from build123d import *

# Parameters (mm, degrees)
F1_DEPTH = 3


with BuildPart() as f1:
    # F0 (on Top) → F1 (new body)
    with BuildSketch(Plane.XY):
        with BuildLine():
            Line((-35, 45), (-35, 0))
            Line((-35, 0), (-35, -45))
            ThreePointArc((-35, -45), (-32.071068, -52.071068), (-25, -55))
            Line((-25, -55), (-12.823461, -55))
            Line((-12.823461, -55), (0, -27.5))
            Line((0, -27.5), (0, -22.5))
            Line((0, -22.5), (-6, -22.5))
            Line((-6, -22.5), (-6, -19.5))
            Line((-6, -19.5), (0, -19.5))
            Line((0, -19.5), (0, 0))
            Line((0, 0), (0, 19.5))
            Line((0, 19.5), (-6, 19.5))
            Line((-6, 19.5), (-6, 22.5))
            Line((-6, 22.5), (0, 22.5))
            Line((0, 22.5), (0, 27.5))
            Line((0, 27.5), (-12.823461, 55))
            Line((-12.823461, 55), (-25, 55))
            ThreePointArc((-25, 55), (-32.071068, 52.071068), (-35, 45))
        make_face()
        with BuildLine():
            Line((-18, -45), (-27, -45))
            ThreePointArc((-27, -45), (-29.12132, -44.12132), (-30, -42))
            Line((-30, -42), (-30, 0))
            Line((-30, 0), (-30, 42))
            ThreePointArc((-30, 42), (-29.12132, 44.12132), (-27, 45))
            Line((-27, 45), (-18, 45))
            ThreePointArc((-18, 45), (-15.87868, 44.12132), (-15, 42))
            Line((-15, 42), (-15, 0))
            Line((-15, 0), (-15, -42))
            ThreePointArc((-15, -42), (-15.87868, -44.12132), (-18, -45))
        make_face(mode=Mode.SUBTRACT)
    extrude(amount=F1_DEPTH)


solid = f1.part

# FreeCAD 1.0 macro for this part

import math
import FreeCAD as App
import Part
import Sketcher
Q = App.Units.Quantity

doc = App.newDocument("Part")
body = doc.addObject("PartDesign::Body", "Body")

# Sketch on XY plane
sketch1 = doc.addObject("Sketcher::SketchObject", "Sketch")
body.addObject(sketch1)
sketch1.AttachmentSupport = (doc.XY_Plane, [""])
sketch1.MapMode = "FlatFace"
sketch1.addGeometry([
    Part.LineSegment(App.Vector(-35, 45, 0), App.Vector(-35, -45, 0)),  # 0
    Part.ArcOfCircle(Part.Circle(App.Vector(-25, -45, 0), App.Vector(0, 0, 1), 10), math.radians(180), math.radians(270)),  # 1
    Part.LineSegment(App.Vector(-25, -55, 0), App.Vector(-12.8, -55, 0)),  # 2
    Part.LineSegment(App.Vector(-12.8, -55, 0), App.Vector(0, -27.5, 0)),  # 3
    Part.LineSegment(App.Vector(0, -27.5, 0), App.Vector(0, -22.5, 0)),  # 4
    Part.LineSegment(App.Vector(0, -22.5, 0), App.Vector(-6, -22.5, 0)),  # 5
    Part.LineSegment(App.Vector(-6, -22.5, 0), App.Vector(-6, -19.5, 0)),  # 6
    Part.LineSegment(App.Vector(-6, -19.5, 0), App.Vector(0, -19.5, 0)),  # 7
    Part.LineSegment(App.Vector(0, -19.5, 0), App.Vector(0, 19.5, 0)),  # 8
    Part.LineSegment(App.Vector(0, 19.5, 0), App.Vector(-6, 19.5, 0)),  # 9
    Part.LineSegment(App.Vector(-6, 19.5, 0), App.Vector(-6, 22.5, 0)),  # 10
    Part.LineSegment(App.Vector(-6, 22.5, 0), App.Vector(0, 22.5, 0)),  # 11
    Part.LineSegment(App.Vector(0, 22.5, 0), App.Vector(0, 27.5, 0)),  # 12
    Part.LineSegment(App.Vector(0, 27.5, 0), App.Vector(-12.8, 55, 0)),  # 13
    Part.LineSegment(App.Vector(-12.8, 55, 0), App.Vector(-25, 55, 0)),  # 14
    Part.ArcOfCircle(Part.Circle(App.Vector(-25, 45, 0), App.Vector(0, 0, 1), 10), math.radians(90), math.radians(180)),  # 15
    Part.ArcOfCircle(Part.Circle(App.Vector(-18, -42, 0), App.Vector(0, 0, 1), 3), math.radians(-90), math.radians(0)),  # 16
    Part.LineSegment(App.Vector(-18, -45, 0), App.Vector(-27, -45, 0)),  # 17
    Part.ArcOfCircle(Part.Circle(App.Vector(-27, -42, 0), App.Vector(0, 0, 1), 3), math.radians(-180), math.radians(-90)),  # 18
    Part.LineSegment(App.Vector(-30, -42, 0), App.Vector(-30, 42, 0)),  # 19
    Part.ArcOfCircle(Part.Circle(App.Vector(-27, 42, 0), App.Vector(0, 0, 1), 3), math.radians(90), math.radians(180)),  # 20
    Part.LineSegment(App.Vector(-27, 45, 0), App.Vector(-18, 45, 0)),  # 21
    Part.ArcOfCircle(Part.Circle(App.Vector(-18, 42, 0), App.Vector(0, 0, 1), 3), math.radians(0), math.radians(90)),  # 22
    Part.LineSegment(App.Vector(-15, 42, 0), App.Vector(-15, -42, 0)),  # 23
], False)
sketch1.addConstraint([
    Sketcher.Constraint("Tangent", 0, 2, 1, 1),
    Sketcher.Constraint("Tangent", 1, 2, 2, 1),
    Sketcher.Constraint("Coincident", 2, 2, 3, 1),
    Sketcher.Constraint("Coincident", 3, 2, 4, 1),
    Sketcher.Constraint("Coincident", 4, 2, 5, 1),
    Sketcher.Constraint("Coincident", 5, 2, 6, 1),
    Sketcher.Constraint("Coincident", 6, 2, 7, 1),
    Sketcher.Constraint("Coincident", 7, 2, 8, 1),
    Sketcher.Constraint("Coincident", 8, 2, 9, 1),
    Sketcher.Constraint("Coincident", 9, 2, 10, 1),
    Sketcher.Constraint("Coincident", 10, 2, 11, 1),
    Sketcher.Constraint("Coincident", 11, 2, 12, 1),
    Sketcher.Constraint("Coincident", 12, 2, 13, 1),
    Sketcher.Constraint("Coincident", 13, 2, 14, 1),
    Sketcher.Constraint("Tangent", 14, 2, 15, 1),
    Sketcher.Constraint("Tangent", 15, 2, 0, 1),
    Sketcher.Constraint("Tangent", 16, 1, 17, 1),
    Sketcher.Constraint("Tangent", 17, 2, 18, 2),
    Sketcher.Constraint("Tangent", 18, 1, 19, 1),
    Sketcher.Constraint("Tangent", 19, 2, 20, 2),
    Sketcher.Constraint("Tangent", 20, 1, 21, 1),
    Sketcher.Constraint("Tangent", 21, 2, 22, 2),
    Sketcher.Constraint("Tangent", 22, 1, 23, 1),
    Sketcher.Constraint("Tangent", 23, 2, 16, 2),
    Sketcher.Constraint("Vertical", 0),
    Sketcher.Constraint("Horizontal", 2),
    Sketcher.Constraint("Vertical", 4),
    Sketcher.Constraint("Horizontal", 5),
    Sketcher.Constraint("Vertical", 6),
    Sketcher.Constraint("Horizontal", 7),
    Sketcher.Constraint("Vertical", 8),
    Sketcher.Constraint("Horizontal", 9),
    Sketcher.Constraint("Vertical", 10),
    Sketcher.Constraint("Horizontal", 11),
    Sketcher.Constraint("Vertical", 12),
    Sketcher.Constraint("Horizontal", 14),
    Sketcher.Constraint("Horizontal", 17),
    Sketcher.Constraint("Vertical", 19),
    Sketcher.Constraint("Horizontal", 21),
    Sketcher.Constraint("Vertical", 23),
    Sketcher.Constraint("Equal", 1, 15),
    Sketcher.Constraint("Equal", 16, 18),
    Sketcher.Constraint("Equal", 18, 20),
    Sketcher.Constraint("Equal", 20, 22),
    Sketcher.Constraint("Symmetric", 7, 2, 8, 2, -1, 1),
    Sketcher.Constraint("Symmetric", 4, 2, 11, 2, -1, 1),
    Sketcher.Constraint("Symmetric", 3, 2, 12, 2, -1),
    Sketcher.Constraint("Symmetric", 2, 2, 13, 2, -1),
    Sketcher.Constraint("Horizontal", 0, 2, 16, 1),
    Sketcher.Constraint("Horizontal", 15, 2, 20, 1),
    Sketcher.Constraint("Vertical", 6, 2, 9, 2),
    Sketcher.Constraint("Radius", 1, Q("9.999999 mm")),
    Sketcher.Constraint("Radius", 16, Q("3.000001 mm")),
    Sketcher.Constraint("DistanceX", 5, 2, 5, 1, Q("6 mm")),
    Sketcher.Constraint("DistanceX", 17, 2, 17, 1, Q("9 mm")),
    Sketcher.Constraint("DistanceY", 0, 2, 0, 1, Q("90 mm")),
    Sketcher.Constraint("DistanceY", 4, 1, 4, 2, Q("5 mm")),
    Sketcher.Constraint("DistanceY", 6, 1, 6, 2, Q("3 mm")),
    Sketcher.Constraint("DistanceY", 8, 1, 8, 2, Q("39 mm")),
    Sketcher.Constraint("Angle", 3, Q("64.999999 deg")),
    Sketcher.Constraint("DistanceX", 1, 3, -1, 1, Q("25.000001 mm")),
    Sketcher.Constraint("DistanceX", 16, 3, -1, 1, Q("18.000001 mm")),
])
pad1 = doc.addObject("PartDesign::Pad", "Pad")
body.addObject(pad1)
pad1.Profile = sketch1
pad1.Length = 3

doc.recompute()
